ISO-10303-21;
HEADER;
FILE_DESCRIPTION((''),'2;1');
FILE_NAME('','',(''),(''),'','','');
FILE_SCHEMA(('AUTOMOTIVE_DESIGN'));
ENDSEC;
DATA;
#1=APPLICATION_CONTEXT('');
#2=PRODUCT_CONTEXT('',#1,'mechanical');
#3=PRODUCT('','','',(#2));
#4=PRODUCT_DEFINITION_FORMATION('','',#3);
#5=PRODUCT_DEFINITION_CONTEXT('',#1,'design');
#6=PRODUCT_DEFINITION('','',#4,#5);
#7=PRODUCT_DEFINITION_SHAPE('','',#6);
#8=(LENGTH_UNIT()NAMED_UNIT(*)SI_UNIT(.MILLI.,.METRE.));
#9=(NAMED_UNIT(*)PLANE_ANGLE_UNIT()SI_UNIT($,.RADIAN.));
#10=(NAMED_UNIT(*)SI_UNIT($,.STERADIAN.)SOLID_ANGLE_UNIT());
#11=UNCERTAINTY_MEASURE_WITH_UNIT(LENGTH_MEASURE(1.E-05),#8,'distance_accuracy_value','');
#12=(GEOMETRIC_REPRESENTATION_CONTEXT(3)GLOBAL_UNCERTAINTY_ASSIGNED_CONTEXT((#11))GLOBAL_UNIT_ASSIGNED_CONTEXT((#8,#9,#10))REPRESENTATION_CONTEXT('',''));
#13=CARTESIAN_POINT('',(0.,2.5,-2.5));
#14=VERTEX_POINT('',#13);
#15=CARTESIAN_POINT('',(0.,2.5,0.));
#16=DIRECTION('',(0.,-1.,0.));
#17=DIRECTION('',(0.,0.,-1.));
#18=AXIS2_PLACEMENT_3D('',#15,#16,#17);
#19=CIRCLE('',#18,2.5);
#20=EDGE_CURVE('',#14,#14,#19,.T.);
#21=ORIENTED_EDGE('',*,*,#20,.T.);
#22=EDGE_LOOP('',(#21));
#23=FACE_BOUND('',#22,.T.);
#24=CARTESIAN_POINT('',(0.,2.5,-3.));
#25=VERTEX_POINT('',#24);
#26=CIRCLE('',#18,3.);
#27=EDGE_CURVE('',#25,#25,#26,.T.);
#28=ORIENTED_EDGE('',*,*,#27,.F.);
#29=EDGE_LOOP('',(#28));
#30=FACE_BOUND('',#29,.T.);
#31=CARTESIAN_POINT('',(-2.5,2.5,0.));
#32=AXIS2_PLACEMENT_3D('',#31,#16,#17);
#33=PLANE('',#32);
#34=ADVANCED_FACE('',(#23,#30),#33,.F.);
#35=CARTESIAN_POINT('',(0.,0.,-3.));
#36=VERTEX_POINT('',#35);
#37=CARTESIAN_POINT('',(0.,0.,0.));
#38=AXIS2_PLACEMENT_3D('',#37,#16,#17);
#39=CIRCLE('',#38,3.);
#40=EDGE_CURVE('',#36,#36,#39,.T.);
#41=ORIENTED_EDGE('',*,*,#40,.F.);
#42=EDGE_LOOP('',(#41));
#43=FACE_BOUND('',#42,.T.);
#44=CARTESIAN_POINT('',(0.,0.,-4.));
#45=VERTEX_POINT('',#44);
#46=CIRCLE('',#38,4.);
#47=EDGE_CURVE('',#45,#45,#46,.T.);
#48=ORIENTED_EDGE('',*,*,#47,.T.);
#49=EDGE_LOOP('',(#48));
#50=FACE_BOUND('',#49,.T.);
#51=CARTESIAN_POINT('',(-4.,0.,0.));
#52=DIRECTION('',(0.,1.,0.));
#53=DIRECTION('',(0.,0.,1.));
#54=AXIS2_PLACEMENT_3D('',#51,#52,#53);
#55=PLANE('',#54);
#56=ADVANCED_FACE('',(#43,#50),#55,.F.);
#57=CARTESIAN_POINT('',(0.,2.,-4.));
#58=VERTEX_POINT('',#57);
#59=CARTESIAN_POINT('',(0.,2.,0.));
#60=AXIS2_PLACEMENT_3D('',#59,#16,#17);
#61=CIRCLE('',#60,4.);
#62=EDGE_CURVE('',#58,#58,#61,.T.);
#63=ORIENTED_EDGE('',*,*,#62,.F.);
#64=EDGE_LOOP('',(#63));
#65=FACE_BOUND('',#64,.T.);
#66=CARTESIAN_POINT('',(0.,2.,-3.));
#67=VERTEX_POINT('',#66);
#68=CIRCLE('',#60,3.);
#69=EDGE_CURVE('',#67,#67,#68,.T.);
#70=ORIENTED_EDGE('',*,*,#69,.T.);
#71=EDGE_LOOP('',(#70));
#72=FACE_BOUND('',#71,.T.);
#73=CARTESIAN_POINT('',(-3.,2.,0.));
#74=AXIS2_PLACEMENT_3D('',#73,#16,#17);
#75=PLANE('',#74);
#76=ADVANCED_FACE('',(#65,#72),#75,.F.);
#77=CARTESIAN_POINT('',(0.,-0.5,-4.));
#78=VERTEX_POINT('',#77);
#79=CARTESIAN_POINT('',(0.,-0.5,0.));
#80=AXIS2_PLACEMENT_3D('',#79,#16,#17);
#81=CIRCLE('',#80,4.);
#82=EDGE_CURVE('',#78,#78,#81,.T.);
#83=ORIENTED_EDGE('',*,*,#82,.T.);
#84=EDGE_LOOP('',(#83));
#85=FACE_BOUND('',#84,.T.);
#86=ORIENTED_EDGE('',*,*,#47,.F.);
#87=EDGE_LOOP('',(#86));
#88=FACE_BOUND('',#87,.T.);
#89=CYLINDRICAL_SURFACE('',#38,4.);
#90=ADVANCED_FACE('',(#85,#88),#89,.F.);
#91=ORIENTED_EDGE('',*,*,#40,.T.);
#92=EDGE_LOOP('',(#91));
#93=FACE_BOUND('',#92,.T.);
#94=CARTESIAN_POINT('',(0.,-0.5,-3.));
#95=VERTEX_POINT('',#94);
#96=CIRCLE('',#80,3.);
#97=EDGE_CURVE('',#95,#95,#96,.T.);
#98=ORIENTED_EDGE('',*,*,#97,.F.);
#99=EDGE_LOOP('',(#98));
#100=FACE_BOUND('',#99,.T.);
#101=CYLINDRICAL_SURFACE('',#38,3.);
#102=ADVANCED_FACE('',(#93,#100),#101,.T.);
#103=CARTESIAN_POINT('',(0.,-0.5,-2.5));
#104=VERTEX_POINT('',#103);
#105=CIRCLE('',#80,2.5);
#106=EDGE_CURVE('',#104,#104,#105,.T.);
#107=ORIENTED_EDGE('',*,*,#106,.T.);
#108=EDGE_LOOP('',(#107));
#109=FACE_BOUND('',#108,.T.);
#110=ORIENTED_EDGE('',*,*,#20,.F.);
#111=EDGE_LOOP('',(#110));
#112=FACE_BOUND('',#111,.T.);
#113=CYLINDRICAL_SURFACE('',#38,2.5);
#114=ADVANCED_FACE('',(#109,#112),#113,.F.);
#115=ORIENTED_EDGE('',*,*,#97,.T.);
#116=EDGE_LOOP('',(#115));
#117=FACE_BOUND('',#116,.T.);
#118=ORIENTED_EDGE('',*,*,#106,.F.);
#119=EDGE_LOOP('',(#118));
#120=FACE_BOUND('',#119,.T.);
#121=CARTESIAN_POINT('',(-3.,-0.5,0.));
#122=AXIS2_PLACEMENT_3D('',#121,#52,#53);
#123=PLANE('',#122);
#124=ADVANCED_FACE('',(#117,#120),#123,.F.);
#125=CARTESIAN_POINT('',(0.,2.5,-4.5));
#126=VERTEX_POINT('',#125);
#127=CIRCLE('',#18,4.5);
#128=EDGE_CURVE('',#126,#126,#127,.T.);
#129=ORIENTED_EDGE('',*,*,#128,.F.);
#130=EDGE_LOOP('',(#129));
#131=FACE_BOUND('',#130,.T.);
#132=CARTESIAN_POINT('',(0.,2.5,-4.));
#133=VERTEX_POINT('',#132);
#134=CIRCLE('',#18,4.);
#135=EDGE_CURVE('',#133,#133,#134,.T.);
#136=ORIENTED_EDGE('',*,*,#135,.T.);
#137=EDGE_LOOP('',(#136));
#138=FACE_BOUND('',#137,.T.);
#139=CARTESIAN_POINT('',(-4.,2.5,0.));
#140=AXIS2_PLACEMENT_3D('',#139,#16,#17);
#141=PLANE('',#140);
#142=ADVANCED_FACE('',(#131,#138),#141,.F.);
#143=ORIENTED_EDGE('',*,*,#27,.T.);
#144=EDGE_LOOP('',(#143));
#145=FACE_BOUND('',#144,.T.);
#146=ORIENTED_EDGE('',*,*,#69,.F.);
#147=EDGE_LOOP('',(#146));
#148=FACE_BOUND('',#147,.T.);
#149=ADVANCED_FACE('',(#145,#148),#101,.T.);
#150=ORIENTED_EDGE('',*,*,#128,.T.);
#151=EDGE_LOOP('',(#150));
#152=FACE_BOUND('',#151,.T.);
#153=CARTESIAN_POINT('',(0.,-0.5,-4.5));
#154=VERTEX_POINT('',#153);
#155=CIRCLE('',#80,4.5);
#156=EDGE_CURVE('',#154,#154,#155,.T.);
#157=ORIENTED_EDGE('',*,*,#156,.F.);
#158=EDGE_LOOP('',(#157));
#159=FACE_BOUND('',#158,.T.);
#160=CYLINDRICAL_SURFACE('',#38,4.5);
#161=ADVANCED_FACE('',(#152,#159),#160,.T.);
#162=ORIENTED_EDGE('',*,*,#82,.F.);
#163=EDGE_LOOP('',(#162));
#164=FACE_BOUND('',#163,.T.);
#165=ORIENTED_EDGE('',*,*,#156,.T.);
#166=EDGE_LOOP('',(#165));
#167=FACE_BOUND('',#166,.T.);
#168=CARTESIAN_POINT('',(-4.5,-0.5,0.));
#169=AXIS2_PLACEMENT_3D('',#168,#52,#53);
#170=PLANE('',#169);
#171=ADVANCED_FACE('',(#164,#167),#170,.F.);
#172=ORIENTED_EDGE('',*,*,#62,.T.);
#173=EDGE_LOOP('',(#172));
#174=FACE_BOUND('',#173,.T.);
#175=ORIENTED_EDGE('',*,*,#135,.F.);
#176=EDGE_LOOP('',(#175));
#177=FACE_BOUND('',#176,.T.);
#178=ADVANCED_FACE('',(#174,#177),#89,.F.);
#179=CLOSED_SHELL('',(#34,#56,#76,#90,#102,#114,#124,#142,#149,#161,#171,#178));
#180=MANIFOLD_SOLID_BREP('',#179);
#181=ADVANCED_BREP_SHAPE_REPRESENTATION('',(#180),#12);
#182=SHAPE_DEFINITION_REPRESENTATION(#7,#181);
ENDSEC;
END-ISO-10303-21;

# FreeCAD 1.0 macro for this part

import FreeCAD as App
import Part
import Sketcher

V = App.Vector

doc = App.newDocument("Part")
body = doc.addObject("PartDesign::Body", "Body")

sketch1 = doc.addObject("Sketcher::SketchObject", "Sketch")
body.addObject(sketch1)
sketch1.AttachmentSupport = (doc.XY_Plane, [""])
sketch1.MapMode = "FlatFace"
sketch1.addGeometry(Part.LineSegment(V(-2.5, 2.5, 0), V(-3, 2.5, 0)), False)
sketch1.addGeometry(Part.LineSegment(V(-3, 2.5, 0), V(-3, 2, 0)), False)
sketch1.addGeometry(Part.LineSegment(V(-3, 2, 0), V(-4, 2, 0)), False)
sketch1.addGeometry(Part.LineSegment(V(-4, 2, 0), V(-4, 2.5, 0)), False)
sketch1.addGeometry(Part.LineSegment(V(-4, 2.5, 0), V(-4.5, 2.5, 0)), False)
sketch1.addGeometry(Part.LineSegment(V(-4.5, 2.5, 0), V(-4.5, -0.5, 0)), False)
sketch1.addGeometry(Part.LineSegment(V(-4.5, -0.5, 0), V(-4, -0.5, 0)), False)
sketch1.addGeometry(Part.LineSegment(V(-4, -0.5, 0), V(-4, 0, 0)), False)
sketch1.addGeometry(Part.LineSegment(V(-4, 0, 0), V(-3, 0, 0)), False)
sketch1.addGeometry(Part.LineSegment(V(-3, 0, 0), V(-3, -0.5, 0)), False)
sketch1.addGeometry(Part.LineSegment(V(-3, -0.5, 0), V(-2.5, -0.5, 0)), False)
sketch1.addGeometry(Part.LineSegment(V(-2.5, -0.5, 0), V(-2.5, 2.5, 0)), False)
sketch1.addConstraint(Sketcher.Constraint("Coincident", 0, 2, 1, 1))
sketch1.addConstraint(Sketcher.Constraint("Coincident", 1, 2, 2, 1))
sketch1.addConstraint(Sketcher.Constraint("Coincident", 2, 2, 3, 1))
sketch1.addConstraint(Sketcher.Constraint("Coincident", 3, 2, 4, 1))
sketch1.addConstraint(Sketcher.Constraint("Coincident", 4, 2, 5, 1))
sketch1.addConstraint(Sketcher.Constraint("Coincident", 5, 2, 6, 1))
sketch1.addConstraint(Sketcher.Constraint("Coincident", 6, 2, 7, 1))
sketch1.addConstraint(Sketcher.Constraint("Coincident", 7, 2, 8, 1))
sketch1.addConstraint(Sketcher.Constraint("Coincident", 8, 2, 9, 1))
sketch1.addConstraint(Sketcher.Constraint("Coincident", 9, 2, 10, 1))
sketch1.addConstraint(Sketcher.Constraint("Coincident", 10, 2, 11, 1))
sketch1.addConstraint(Sketcher.Constraint("Coincident", 11, 2, 0, 1))
sketch1.addConstraint(Sketcher.Constraint("Horizontal", 0))
sketch1.addConstraint(Sketcher.Constraint("Vertical", 1))
sketch1.addConstraint(Sketcher.Constraint("Horizontal", 2))
sketch1.addConstraint(Sketcher.Constraint("Vertical", 3))
sketch1.addConstraint(Sketcher.Constraint("Horizontal", 4))
sketch1.addConstraint(Sketcher.Constraint("Vertical", 5))
sketch1.addConstraint(Sketcher.Constraint("Horizontal", 6))
sketch1.addConstraint(Sketcher.Constraint("Vertical", 7))
sketch1.addConstraint(Sketcher.Constraint("Horizontal", 8))
sketch1.addConstraint(Sketcher.Constraint("Vertical", 9))
sketch1.addConstraint(Sketcher.Constraint("Horizontal", 10))
sketch1.addConstraint(Sketcher.Constraint("Vertical", 11))
sketch1.addConstraint(Sketcher.Constraint("PointOnObject", 7, 2, -1))
sketch1.addConstraint(Sketcher.Constraint("Horizontal", 0, 2, 3, 2))
sketch1.addConstraint(Sketcher.Constraint("Horizontal", 6, 2, 9, 2))
sketch1.addConstraint(Sketcher.Constraint("Vertical", 3, 2, 6, 2))
sketch1.addConstraint(Sketcher.Constraint("Vertical", 1, 2, 8, 2))
sketch1.addConstraint(Sketcher.Constraint("Equal", 0, 4))
sketch1.addConstraint(Sketcher.Constraint("Equal", 10, 1))
sketch1.addConstraint(Sketcher.Constraint("Equal", 3, 7))
sketch1.addConstraint(Sketcher.Constraint("DistanceX", 2, 2, 2, 1, 1.0))
sketch1.addConstraint(Sketcher.Constraint("DistanceY", 5, 2, 5, 1, 3.0))
sketch1.addConstraint(Sketcher.Constraint("DistanceX", 0, 2, 0, 1, 0.5))
sketch1.addConstraint(Sketcher.Constraint("DistanceX", 0, 2, -1, 1, 3.0))
revolution = doc.addObject("PartDesign::Revolution", "Revolution")
body.addObject(revolution)
revolution.Profile = sketch1
revolution.ReferenceAxis = (sketch1, ["V_Axis"])
revolution.Angle = 360

doc.recompute()
